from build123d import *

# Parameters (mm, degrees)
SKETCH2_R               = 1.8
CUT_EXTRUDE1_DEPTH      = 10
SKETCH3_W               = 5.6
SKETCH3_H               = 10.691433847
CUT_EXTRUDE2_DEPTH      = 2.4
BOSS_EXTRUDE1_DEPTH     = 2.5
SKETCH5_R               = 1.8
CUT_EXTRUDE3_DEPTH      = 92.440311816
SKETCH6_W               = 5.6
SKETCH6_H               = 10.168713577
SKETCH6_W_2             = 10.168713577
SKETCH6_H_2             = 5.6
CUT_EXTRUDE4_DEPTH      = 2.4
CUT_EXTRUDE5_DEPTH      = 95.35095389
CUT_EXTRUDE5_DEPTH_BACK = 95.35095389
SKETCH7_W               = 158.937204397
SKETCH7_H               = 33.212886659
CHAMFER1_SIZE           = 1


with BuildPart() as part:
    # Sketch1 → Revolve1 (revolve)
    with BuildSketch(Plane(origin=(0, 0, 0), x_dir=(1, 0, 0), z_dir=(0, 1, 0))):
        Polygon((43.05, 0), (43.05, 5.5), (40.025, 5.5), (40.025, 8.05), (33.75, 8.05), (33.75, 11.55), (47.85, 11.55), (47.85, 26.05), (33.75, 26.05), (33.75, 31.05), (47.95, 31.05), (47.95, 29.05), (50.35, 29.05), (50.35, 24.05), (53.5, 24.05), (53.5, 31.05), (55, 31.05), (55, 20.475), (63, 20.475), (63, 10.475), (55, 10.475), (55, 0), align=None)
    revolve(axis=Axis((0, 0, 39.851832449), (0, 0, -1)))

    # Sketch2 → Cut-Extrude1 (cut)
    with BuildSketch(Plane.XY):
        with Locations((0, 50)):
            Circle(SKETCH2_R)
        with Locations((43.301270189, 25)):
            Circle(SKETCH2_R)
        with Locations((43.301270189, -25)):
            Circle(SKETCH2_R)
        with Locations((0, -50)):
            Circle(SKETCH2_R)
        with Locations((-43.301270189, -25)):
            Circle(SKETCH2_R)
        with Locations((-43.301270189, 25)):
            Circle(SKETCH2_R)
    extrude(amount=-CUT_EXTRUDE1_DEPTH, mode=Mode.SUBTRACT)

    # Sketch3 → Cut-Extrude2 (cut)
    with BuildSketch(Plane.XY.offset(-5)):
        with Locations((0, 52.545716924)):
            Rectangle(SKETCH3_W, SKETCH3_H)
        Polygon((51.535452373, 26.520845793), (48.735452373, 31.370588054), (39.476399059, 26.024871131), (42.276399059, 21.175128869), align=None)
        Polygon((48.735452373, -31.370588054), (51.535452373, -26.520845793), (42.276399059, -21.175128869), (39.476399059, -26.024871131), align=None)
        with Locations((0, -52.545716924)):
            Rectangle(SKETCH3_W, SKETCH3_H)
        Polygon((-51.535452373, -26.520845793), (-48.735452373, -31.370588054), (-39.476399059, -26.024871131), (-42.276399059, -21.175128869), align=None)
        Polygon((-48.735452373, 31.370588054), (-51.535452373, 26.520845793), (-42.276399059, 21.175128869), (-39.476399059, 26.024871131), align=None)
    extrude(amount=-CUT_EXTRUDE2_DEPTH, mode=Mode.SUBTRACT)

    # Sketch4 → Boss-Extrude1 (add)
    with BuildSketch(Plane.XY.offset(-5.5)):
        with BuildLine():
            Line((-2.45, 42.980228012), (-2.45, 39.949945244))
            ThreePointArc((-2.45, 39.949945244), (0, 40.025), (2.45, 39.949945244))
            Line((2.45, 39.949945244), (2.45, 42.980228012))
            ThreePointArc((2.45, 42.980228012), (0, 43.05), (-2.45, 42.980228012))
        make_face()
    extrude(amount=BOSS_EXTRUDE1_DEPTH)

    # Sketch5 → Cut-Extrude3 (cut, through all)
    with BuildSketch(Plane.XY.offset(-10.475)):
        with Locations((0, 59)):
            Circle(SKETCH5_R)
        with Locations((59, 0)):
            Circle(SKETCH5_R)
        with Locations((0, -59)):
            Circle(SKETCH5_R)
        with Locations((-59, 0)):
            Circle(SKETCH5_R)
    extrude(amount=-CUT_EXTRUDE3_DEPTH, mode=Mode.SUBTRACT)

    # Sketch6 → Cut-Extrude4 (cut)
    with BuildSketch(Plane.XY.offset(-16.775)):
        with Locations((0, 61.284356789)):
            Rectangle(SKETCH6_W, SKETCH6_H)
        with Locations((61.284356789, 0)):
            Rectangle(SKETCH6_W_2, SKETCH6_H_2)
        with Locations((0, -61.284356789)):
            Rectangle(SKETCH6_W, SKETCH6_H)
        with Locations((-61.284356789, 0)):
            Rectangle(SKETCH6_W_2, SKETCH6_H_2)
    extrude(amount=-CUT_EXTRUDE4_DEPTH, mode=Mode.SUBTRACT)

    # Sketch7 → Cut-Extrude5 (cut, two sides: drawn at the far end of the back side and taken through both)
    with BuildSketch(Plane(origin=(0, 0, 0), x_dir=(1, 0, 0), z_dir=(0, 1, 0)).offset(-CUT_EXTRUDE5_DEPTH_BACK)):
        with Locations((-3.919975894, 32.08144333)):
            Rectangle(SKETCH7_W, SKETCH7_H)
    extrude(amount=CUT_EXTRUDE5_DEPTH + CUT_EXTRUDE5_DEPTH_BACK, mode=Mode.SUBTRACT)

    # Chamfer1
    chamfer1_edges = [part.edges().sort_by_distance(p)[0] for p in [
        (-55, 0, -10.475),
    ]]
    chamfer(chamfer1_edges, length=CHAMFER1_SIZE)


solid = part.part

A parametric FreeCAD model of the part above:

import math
import FreeCAD as App
import Part
import Sketcher
from FreeCAD import Vector
Q = App.Units.Quantity


def edges_at(feature, points):
    """Names of the edges that pass closest to the given points."""
    edges = feature.Shape.Edges
    near = lambda p: min(range(len(edges)), key=lambda i: edges[i].distToShape(Part.Vertex(*p))[0])
    return sorted({f"Edge{near(p) + 1}" for p in points})

doc = App.newDocument("Part")
body = doc.addObject("PartDesign::Body", "Body")

sketch1 = body.newObject("Sketcher::SketchObject", "Sketch")
sketch1.AttachmentSupport = (doc.getObject("XZ_Plane"), [""])
sketch1.MapMode = "FlatFace"
sketch1.addGeometry([
    Part.LineSegment(Vector(43.05, -5.5, 0), Vector(43.05, 0, 0)),
    Part.LineSegment(Vector(43.05, 0, 0), Vector(55, 0, 0)),
    Part.LineSegment(Vector(55, 0, 0), Vector(55, -10.475, 0)),
    Part.LineSegment(Vector(55, -10.475, 0), Vector(63, -10.475, 0)),
    Part.LineSegment(Vector(63, -10.475, 0), Vector(63, -20.475, 0)),
    Part.LineSegment(Vector(63, -20.475, 0), Vector(55, -20.475, 0)),
    Part.LineSegment(Vector(55, -20.475, 0), Vector(55, -31.05, 0)),
    Part.LineSegment(Vector(55, -31.05, 0), Vector(53.5, -31.05, 0)),
    Part.LineSegment(Vector(53.5, -31.05, 0), Vector(53.5, -24.05, 0)),
    Part.LineSegment(Vector(53.5, -24.05, 0), Vector(50.35, -24.05, 0)),
    Part.LineSegment(Vector(50.35, -24.05, 0), Vector(50.35, -29.05, 0)),
    Part.LineSegment(Vector(50.35, -29.05, 0), Vector(47.95, -29.05, 0)),
    Part.LineSegment(Vector(47.95, -29.05, 0), Vector(47.95, -31.05, 0)),
    Part.LineSegment(Vector(47.95, -31.05, 0), Vector(33.75, -31.05, 0)),
    Part.LineSegment(Vector(33.75, -31.05, 0), Vector(33.75, -26.05, 0)),
    Part.LineSegment(Vector(33.75, -26.05, 0), Vector(47.85, -26.05, 0)),
    Part.LineSegment(Vector(47.85, -26.05, 0), Vector(47.85, -11.55, 0)),
    Part.LineSegment(Vector(47.85, -11.55, 0), Vector(33.75, -11.55, 0)),
    Part.LineSegment(Vector(33.75, -11.55, 0), Vector(33.75, -8.05, 0)),
    Part.LineSegment(Vector(33.75, -8.05, 0), Vector(40.025, -8.05, 0)),
    Part.LineSegment(Vector(40.025, -8.05, 0), Vector(40.025, -5.5, 0)),
    Part.LineSegment(Vector(40.025, -5.5, 0), Vector(43.05, -5.5, 0)),
], False)
sketch1.addConstraint([
    Sketcher.Constraint("Coincident", 0, 2, 1, 1),
    Sketcher.Constraint("Coincident", 1, 2, 2, 1),
    Sketcher.Constraint("Coincident", 2, 2, 3, 1),
    Sketcher.Constraint("Coincident", 3, 2, 4, 1),
    Sketcher.Constraint("Coincident", 4, 2, 5, 1),
    Sketcher.Constraint("Coincident", 5, 2, 6, 1),
    Sketcher.Constraint("Coincident", 6, 2, 7, 1),
    Sketcher.Constraint("Coincident", 7, 2, 8, 1),
    Sketcher.Constraint("Coincident", 8, 2, 9, 1),
    Sketcher.Constraint("Coincident", 9, 2, 10, 1),
    Sketcher.Constraint("Coincident", 10, 2, 11, 1),
    Sketcher.Constraint("Coincident", 11, 2, 12, 1),
    Sketcher.Constraint("Coincident", 12, 2, 13, 1),
    Sketcher.Constraint("Coincident", 13, 2, 14, 1),
    Sketcher.Constraint("Coincident", 14, 2, 15, 1),
    Sketcher.Constraint("Coincident", 15, 2, 16, 1),
    Sketcher.Constraint("Coincident", 16, 2, 17, 1),
    Sketcher.Constraint("Coincident", 17, 2, 18, 1),
    Sketcher.Constraint("Coincident", 18, 2, 19, 1),
    Sketcher.Constraint("Coincident", 19, 2, 20, 1),
    Sketcher.Constraint("Coincident", 20, 2, 21, 1),
    Sketcher.Constraint("Coincident", 21, 2, 0, 1),
    Sketcher.Constraint("Vertical", 0),
    Sketcher.Constraint("Horizontal", 1),
    Sketcher.Constraint("Vertical", 2),
    Sketcher.Constraint("Horizontal", 3),
    Sketcher.Constraint("Vertical", 4),
    Sketcher.Constraint("Horizontal", 5),
    Sketcher.Constraint("Vertical", 6),
    Sketcher.Constraint("Horizontal", 7),
    Sketcher.Constraint("Vertical", 8),
    Sketcher.Constraint("Horizontal", 9),
    Sketcher.Constraint("Vertical", 10),
    Sketcher.Constraint("Horizontal", 11),
    Sketcher.Constraint("Vertical", 12),
    Sketcher.Constraint("Horizontal", 13),
    Sketcher.Constraint("Vertical", 14),
    Sketcher.Constraint("Horizontal", 15),
    Sketcher.Constraint("Vertical", 16),
    Sketcher.Constraint("Horizontal", 17),
    Sketcher.Constraint("Vertical", 18),
    Sketcher.Constraint("Horizontal", 19),
    Sketcher.Constraint("Vertical", 20),
    Sketcher.Constraint("Horizontal", 21),
    Sketcher.Constraint("PointOnObject", 0, 2, -1),
    Sketcher.Constraint("Horizontal", 7, 2, 12, 2),
    Sketcher.Constraint("Vertical", 2, 2, 5, 2),
    Sketcher.Constraint("Vertical", 14, 2, 17, 2),
    Sketcher.Constraint("Equal", 10, 14),
    Sketcher.Constraint("DistanceX", 3, 1, 3, 2, 8.0),
    Sketcher.Constraint("DistanceY", 4, 2, 4, 1, 10.0),
    Sketcher.Constraint("DistanceY", 8, 1, 8, 2, 7.0),
    Sketcher.Constraint("DistanceY", 10, 2, 10, 1, 5.0),
    Sketcher.Constraint("DistanceX", 7, 2, 7, 1, 1.5),
    Sketcher.Constraint("DistanceX", 11, 2, 11, 1, 2.4),
    Sketcher.Constraint("DistanceX", 13, 2, 13, 1, 14.2),
    Sketcher.Constraint("DistanceX", 15, 1, 15, 2, 14.1),
    Sketcher.Constraint("DistanceY", 0, 1, 0, 2, 5.5),
    Sketcher.Constraint("DistanceY", 16, 1, 16, 2, 14.5),
    Sketcher.Constraint("DistanceY", 18, 1, 18, 2, 3.5),
    Sketcher.Constraint("DistanceX", -1, 1, 1, 2, 55.0),
    Sketcher.Constraint("DistanceX", 1, 1, 1, 2, 11.95),
    Sketcher.Constraint("DistanceX", 9, 2, 9, 1, 3.15),
    Sketcher.Constraint("DistanceY", 20, 1, 20, 2, 2.55),
    Sketcher.Constraint("DistanceX", 19, 1, 19, 2, 6.275),
    Sketcher.Constraint("DistanceY", 2, 2, 2, 1, 10.475),
])
revolution = body.newObject("PartDesign::Revolution", "Revolution")
revolution.Profile = sketch1
revolution.ReferenceAxis = (sketch1, ["V_Axis"])
revolution.Angle = 360

sketch2 = body.newObject("Sketcher::SketchObject", "Sketch001")
sketch2.AttachmentSupport = (doc.getObject("XY_Plane"), [""])
sketch2.MapMode = "FlatFace"
sketch2.addGeometry([
    Part.Circle(Vector(0, 50, 0), Vector(0, 0, 1), 1.8),
    Part.Circle(Vector(43.30127, 25, 0), Vector(0, 0, 1), 1.8),
    Part.Circle(Vector(43.30127, -25, 0), Vector(0, 0, 1), 1.8),
    Part.Circle(Vector(0, -50, 0), Vector(0, 0, 1), 1.8),
    Part.Circle(Vector(-43.30127, -25, 0), Vector(0, 0, 1), 1.8),
    Part.Circle(Vector(-43.30127, 25, 0), Vector(0, 0, 1), 1.8),
], False)
sketch2.addConstraint([
    Sketcher.Constraint("Equal", 0, 1),
    Sketcher.Constraint("Equal", 1, 2),
    Sketcher.Constraint("Equal", 2, 3),
    Sketcher.Constraint("Equal", 3, 4),
    Sketcher.Constraint("Equal", 4, 5),
    Sketcher.Constraint("Symmetric", 0, 3, 3, 3, -1, 1),
    Sketcher.Constraint("Symmetric", 1, 3, 4, 3, -1, 1),
    Sketcher.Constraint("Symmetric", 2, 3, 5, 3, -1, 1),
    Sketcher.Constraint("Symmetric", 2, 3, 4, 3, -2),
    Sketcher.Constraint("PointOnObject", 0, 3, -2),
    Sketcher.Constraint("Diameter", 0, 3.6),
    Sketcher.Constraint("DistanceY", -1, 1, 0, 3, 50.0),
    Sketcher.Constraint("DistanceY", -1, 1, 1, 3, 25.0),
    Sketcher.Constraint("DistanceX", -1, 1, 1, 3, 43.30127),
])
pocket1 = body.newObject("PartDesign::Pocket", "Pocket")
pocket1.Profile = sketch2
pocket1.Length = 10

sketch3 = body.newObject("Sketcher::SketchObject", "Sketch002")
sketch3.AttachmentSupport = (doc.getObject("XY_Plane"), [""])
sketch3.MapMode = "FlatFace"
sketch3.AttachmentOffset = App.Placement(Vector(0, 0, -5), App.Rotation())
sketch3.addGeometry([
    Part.LineSegment(Vector(-2.8, 57.891434, 0), Vector(-2.8, 47.2, 0)),
    Part.LineSegment(Vector(-2.8, 47.2, 0), Vector(2.8, 47.2, 0)),
    Part.LineSegment(Vector(2.8, 47.2, 0), Vector(2.8, 57.891434, 0)),
    Part.LineSegment(Vector(2.8, 57.891434, 0), Vector(-2.8, 57.891434, 0)),
    Part.LineSegment(Vector(51.535452, 26.520846, 0), Vector(48.735452, 31.370588, 0)),
    Part.LineSegment(Vector(48.735452, 31.370588, 0), Vector(39.476399, 26.024871, 0)),
    Part.LineSegment(Vector(39.476399, 26.024871, 0), Vector(42.276399, 21.175129, 0)),
    Part.LineSegment(Vector(42.276399, 21.175129, 0), Vector(51.535452, 26.520846, 0)),
    Part.LineSegment(Vector(48.735452, -31.370588, 0), Vector(51.535452, -26.520846, 0)),
    Part.LineSegment(Vector(51.535452, -26.520846, 0), Vector(42.276399, -21.175129, 0)),
    Part.LineSegment(Vector(42.276399, -21.175129, 0), Vector(39.476399, -26.024871, 0)),
    Part.LineSegment(Vector(39.476399, -26.024871, 0), Vector(48.735452, -31.370588, 0)),
    Part.LineSegment(Vector(-2.8, -47.2, 0), Vector(-2.8, -57.891434, 0)),
    Part.LineSegment(Vector(-2.8, -57.891434, 0), Vector(2.8, -57.891434, 0)),
    Part.LineSegment(Vector(2.8, -57.891434, 0), Vector(2.8, -47.2, 0)),
    Part.LineSegment(Vector(2.8, -47.2, 0), Vector(-2.8, -47.2, 0)),
    Part.LineSegment(Vector(-51.535452, -26.520846, 0), Vector(-48.735452, -31.370588, 0)),
    Part.LineSegment(Vector(-48.735452, -31.370588, 0), Vector(-39.476399, -26.024871, 0)),
    Part.LineSegment(Vector(-39.476399, -26.024871, 0), Vector(-42.276399, -21.175129, 0)),
    Part.LineSegment(Vector(-42.276399, -21.175129, 0), Vector(-51.535452, -26.520846, 0)),
    Part.LineSegment(Vector(-48.735452, 31.370588, 0), Vector(-51.535452, 26.520846, 0)),
    Part.LineSegment(Vector(-51.535452, 26.520846, 0), Vector(-42.276399, 21.175129, 0)),
    Part.LineSegment(Vector(-42.276399, 21.175129, 0), Vector(-39.476399, 26.024871, 0)),
    Part.LineSegment(Vector(-39.476399, 26.024871, 0), Vector(-48.735452, 31.370588, 0)),
], False)
sketch3.addConstraint([
    Sketcher.Constraint("Coincident", 0, 2, 1, 1),
    Sketcher.Constraint("Coincident", 1, 2, 2, 1),
    Sketcher.Constraint("Coincident", 2, 2, 3, 1),
    Sketcher.Constraint("Coincident", 3, 2, 0, 1),
    Sketcher.Constraint("Coincident", 4, 2, 5, 1),
    Sketcher.Constraint("Coincident", 5, 2, 6, 1),
    Sketcher.Constraint("Coincident", 6, 2, 7, 1),
    Sketcher.Constraint("Coincident", 7, 2, 4, 1),
    Sketcher.Constraint("Coincident", 8, 2, 9, 1),
    Sketcher.Constraint("Coincident", 9, 2, 10, 1),
    Sketcher.Constraint("Coincident", 10, 2, 11, 1),
    Sketcher.Constraint("Coincident", 11, 2, 8, 1),
    Sketcher.Constraint("Coincident", 12, 2, 13, 1),
    Sketcher.Constraint("Coincident", 13, 2, 14, 1),
    Sketcher.Constraint("Coincident", 14, 2, 15, 1),
    Sketcher.Constraint("Coincident", 15, 2, 12, 1),
    Sketcher.Constraint("Coincident", 16, 2, 17, 1),
    Sketcher.Constraint("Coincident", 17, 2, 18, 1),
    Sketcher.Constraint("Coincident", 18, 2, 19, 1),
    Sketcher.Constraint("Coincident", 19, 2, 16, 1),
    Sketcher.Constraint("Coincident", 20, 2, 21, 1),
    Sketcher.Constraint("Coincident", 21, 2, 22, 1),
    Sketcher.Constraint("Coincident", 22, 2, 23, 1),
    Sketcher.Constraint("Coincident", 23, 2, 20, 1),
    Sketcher.Constraint("Vertical", 0),
    Sketcher.Constraint("Horizontal", 1),
    Sketcher.Constraint("Vertical", 2),
    Sketcher.Constraint("Horizontal", 3),
    Sketcher.Constraint("Vertical", 12),
    Sketcher.Constraint("Horizontal", 13),
    Sketcher.Constraint("Vertical", 14),
    Sketcher.Constraint("Horizontal", 15),
    Sketcher.Constraint("Symmetric", 2, 2, 12, 2, -1, 1),
    Sketcher.Constraint("Symmetric", 0, 2, 14, 2, -1, 1),
    Sketcher.Constraint("Symmetric", 4, 2, 16, 2, -1, 1),
    Sketcher.Constraint("Symmetric", 5, 2, 17, 2, -1, 1),
    Sketcher.Constraint("Symmetric", 6, 2, 18, 2, -1, 1),
    Sketcher.Constraint("Symmetric", 7, 2, 19, 2, -1, 1),
    Sketcher.Constraint("Symmetric", 8, 2, 20, 2, -1, 1),
    Sketcher.Constraint("Symmetric", 9, 2, 21, 2, -1, 1),
    Sketcher.Constraint("Symmetric", 10, 2, 22, 2, -1, 1),
    Sketcher.Constraint("Symmetric", 11, 2, 23, 2, -1, 1),
    Sketcher.Constraint("Symmetric", 11, 2, 16, 2, -2),
    Sketcher.Constraint("Symmetric", 10, 2, 17, 2, -2),
    Sketcher.Constraint("Symmetric", 9, 2, 18, 2, -2),
    Sketcher.Constraint("Symmetric", 8, 2, 19, 2, -2),
    Sketcher.Constraint("Perpendicular", 4, 5),
    Sketcher.Constraint("Perpendicular", 5, 6),
    Sketcher.Constraint("Perpendicular", 6, 7),
    Sketcher.Constraint("Vertical", 3, 2, 12, 2),
    Sketcher.Constraint("Angle", 4, Q("120 deg")),
    Sketcher.Constraint("DistanceX", 1, 1, 1, 2, 5.6),
    Sketcher.Constraint("Distance", 4, 5.6),
    Sketcher.Constraint("DistanceY", -1, 1, 0, 2, 47.2),
    Sketcher.Constraint("DistanceY", 9, 2, 5, 2, 47.2),
    Sketcher.Constraint("DistanceX", -1, 1, 5, 2, 39.476399),
    Sketcher.Constraint("DistanceY", 0, 2, 0, 1, 10.691434),
    Sketcher.Constraint("DistanceY", -1, 1, 4, 2, 31.370588),
])
pocket2 = body.newObject("PartDesign::Pocket", "Pocket001")
pocket2.Profile = sketch3
pocket2.Length = 2.4

sketch4 = body.newObject("Sketcher::SketchObject", "Sketch003")
sketch4.AttachmentSupport = (doc.getObject("XY_Plane"), [""])
sketch4.MapMode = "FlatFace"
sketch4.AttachmentOffset = App.Placement(Vector(0, 0, -5.5), App.Rotation())
sketch4.addGeometry([
    Part.LineSegment(Vector(-2.45, 42.980228, 0), Vector(-2.45, 39.949945, 0)),
    Part.ArcOfCircle(Part.Circle(Vector(0, 0, 0), Vector(0, 0, 1), 40.025), math.radians(86.490632), math.radians(93.509368)),
    Part.LineSegment(Vector(2.45, 39.949945, 0), Vector(2.45, 42.980228, 0)),
    Part.ArcOfCircle(Part.Circle(Vector(0, 0, 0), Vector(0, 0, 1), 43.05), math.radians(86.737502), math.radians(93.262498)),
], False)
sketch4.addConstraint([
    Sketcher.Constraint("Coincident", 0, 2, 1, 2),
    Sketcher.Constraint("Coincident", 1, 1, 2, 1),
    Sketcher.Constraint("Coincident", 2, 2, 3, 1),
    Sketcher.Constraint("Coincident", 3, 2, 0, 1),
    Sketcher.Constraint("Vertical", 0),
    Sketcher.Constraint("Vertical", 2),
    Sketcher.Constraint("Coincident", 1, 3, -1, 1),
    Sketcher.Constraint("Coincident", 3, 3, -1, 1),
    Sketcher.Constraint("Horizontal", 0, 2, 1, 1),
    Sketcher.Constraint("Radius", 3, 43.05),
    Sketcher.Constraint("Radius", 1, 40.025),
    Sketcher.Constraint("DistanceX", 0, 2, 1, 1, 4.9),
])
pad1 = body.newObject("PartDesign::Pad", "Pad")
pad1.Profile = sketch4
pad1.Length = 2.5

sketch5 = body.newObject("Sketcher::SketchObject", "Sketch004")
sketch5.AttachmentSupport = (doc.getObject("XY_Plane"), [""])
sketch5.MapMode = "FlatFace"
sketch5.AttachmentOffset = App.Placement(Vector(0, 0, -10.475), App.Rotation())
sketch5.addGeometry([
    Part.Circle(Vector(0, 59, 0), Vector(0, 0, 1), 1.8),
    Part.Circle(Vector(59, 0, 0), Vector(0, 0, 1), 1.8),
    Part.Circle(Vector(0, -59, 0), Vector(0, 0, 1), 1.8),
    Part.Circle(Vector(-59, 0, 0), Vector(0, 0, 1), 1.8),
], False)
sketch5.addConstraint([
    Sketcher.Constraint("Equal", 0, 1),
    Sketcher.Constraint("Equal", 1, 2),
    Sketcher.Constraint("Equal", 2, 3),
    Sketcher.Constraint("Symmetric", 0, 3, 2, 3, -1, 1),
    Sketcher.Constraint("Symmetric", 1, 3, 3, 3, -1, 1),
    Sketcher.Constraint("PointOnObject", 0, 3, -2),
    Sketcher.Constraint("PointOnObject", 1, 3, -1),
    Sketcher.Constraint("Diameter", 0, 3.6),
    Sketcher.Constraint("DistanceY", -1, 1, 0, 3, 59.0),
    Sketcher.Constraint("DistanceX", -1, 1, 1, 3, 59.0),
])
pocket3 = body.newObject("PartDesign::Pocket", "Pocket002")
pocket3.Profile = sketch5
pocket3.Type = "ThroughAll"

sketch6 = body.newObject("Sketcher::SketchObject", "Sketch005")
sketch6.AttachmentSupport = (doc.getObject("XY_Plane"), [""])
sketch6.MapMode = "FlatFace"
sketch6.AttachmentOffset = App.Placement(Vector(0, 0, -16.775), App.Rotation())
sketch6.addGeometry([
    Part.LineSegment(Vector(-2.8, 66.368714, 0), Vector(-2.8, 56.2, 0)),
    Part.LineSegment(Vector(-2.8, 56.2, 0), Vector(2.8, 56.2, 0)),
    Part.LineSegment(Vector(2.8, 56.2, 0), Vector(2.8, 66.368714, 0)),
    Part.LineSegment(Vector(2.8, 66.368714, 0), Vector(-2.8, 66.368714, 0)),
    Part.LineSegment(Vector(56.2, 2.8, 0), Vector(56.2, -2.8, 0)),
    Part.LineSegment(Vector(56.2, -2.8, 0), Vector(66.368714, -2.8, 0)),
    Part.LineSegment(Vector(66.368714, -2.8, 0), Vector(66.368714, 2.8, 0)),
    Part.LineSegment(Vector(66.368714, 2.8, 0), Vector(56.2, 2.8, 0)),
    Part.LineSegment(Vector(-2.8, -56.2, 0), Vector(-2.8, -66.368714, 0)),
    Part.LineSegment(Vector(-2.8, -66.368714, 0), Vector(2.8, -66.368714, 0)),
    Part.LineSegment(Vector(2.8, -66.368714, 0), Vector(2.8, -56.2, 0)),
    Part.LineSegment(Vector(2.8, -56.2, 0), Vector(-2.8, -56.2, 0)),
    Part.LineSegment(Vector(-66.368714, 2.8, 0), Vector(-66.368714, -2.8, 0)),
    Part.LineSegment(Vector(-66.368714, -2.8, 0), Vector(-56.2, -2.8, 0)),
    Part.LineSegment(Vector(-56.2, -2.8, 0), Vector(-56.2, 2.8, 0)),
    Part.LineSegment(Vector(-56.2, 2.8, 0), Vector(-66.368714, 2.8, 0)),
], False)
sketch6.addConstraint([
    Sketcher.Constraint("Coincident", 0, 2, 1, 1),
    Sketcher.Constraint("Coincident", 1, 2, 2, 1),
    Sketcher.Constraint("Coincident", 2, 2, 3, 1),
    Sketcher.Constraint("Coincident", 3, 2, 0, 1),
    Sketcher.Constraint("Coincident", 4, 2, 5, 1),
    Sketcher.Constraint("Coincident", 5, 2, 6, 1),
    Sketcher.Constraint("Coincident", 6, 2, 7, 1),
    Sketcher.Constraint("Coincident", 7, 2, 4, 1),
    Sketcher.Constraint("Coincident", 8, 2, 9, 1),
    Sketcher.Constraint("Coincident", 9, 2, 10, 1),
    Sketcher.Constraint("Coincident", 10, 2, 11, 1),
    Sketcher.Constraint("Coincident", 11, 2, 8, 1),
    Sketcher.Constraint("Coincident", 12, 2, 13, 1),
    Sketcher.Constraint("Coincident", 13, 2, 14, 1),
    Sketcher.Constraint("Coincident", 14, 2, 15, 1),
    Sketcher.Constraint("Coincident", 15, 2, 12, 1),
    Sketcher.Constraint("Vertical", 0),
    Sketcher.Constraint("Horizontal", 1),
    Sketcher.Constraint("Vertical", 2),
    Sketcher.Constraint("Horizontal", 3),
    Sketcher.Constraint("Vertical", 4),
    Sketcher.Constraint("Horizontal", 5),
    Sketcher.Constraint("Vertical", 6),
    Sketcher.Constraint("Horizontal", 7),
    Sketcher.Constraint("Vertical", 8),
    Sketcher.Constraint("Horizontal", 9),
    Sketcher.Constraint("Vertical", 10),
    Sketcher.Constraint("Horizontal", 11),
    Sketcher.Constraint("Vertical", 12),
    Sketcher.Constraint("Horizontal", 13),
    Sketcher.Constraint("Vertical", 14),
    Sketcher.Constraint("Horizontal", 15),
    Sketcher.Constraint("Symmetric", 2, 2, 8, 2, -1, 1),
    Sketcher.Constraint("Symmetric", 0, 2, 10, 2, -1, 1),
    Sketcher.Constraint("Symmetric", 6, 2, 12, 2, -1, 1),
    Sketcher.Constraint("Symmetric", 4, 2, 14, 2, -1, 1),
    Sketcher.Constraint("Horizontal", 5, 2, 12, 2),
    Sketcher.Constraint("Vertical", 3, 2, 8, 2),
    Sketcher.Constraint("Equal", 15, 0),
    Sketcher.Constraint("Equal", 11, 4),
    Sketcher.Constraint("DistanceX", 1, 1, 1, 2, 5.6),
    Sketcher.Constraint("DistanceY", 4, 2, 1, 2, 59.0),
    Sketcher.Constraint("DistanceX", 0, 2, 4, 2, 59.0),
    Sketcher.Constraint("DistanceX", 5, 1, 5, 2, 10.168714),
])
pocket4 = body.newObject("PartDesign::Pocket", "Pocket003")
pocket4.Profile = sketch6
pocket4.Length = 2.4

sketch7 = body.newObject("Sketcher::SketchObject", "Sketch006")
sketch7.AttachmentSupport = (doc.getObject("XZ_Plane"), [""])
sketch7.MapMode = "FlatFace"
sketch7.addGeometry([
    Part.LineSegment(Vector(-83.388578, -48.687887, 0), Vector(-83.388578, -15.475, 0)),
    Part.LineSegment(Vector(-83.388578, -15.475, 0), Vector(75.548626, -15.475, 0)),
    Part.LineSegment(Vector(75.548626, -15.475, 0), Vector(75.548626, -48.687887, 0)),
    Part.LineSegment(Vector(75.548626, -48.687887, 0), Vector(-83.388578, -48.687887, 0)),
], False)
sketch7.addConstraint([
    Sketcher.Constraint("Coincident", 0, 2, 1, 1),
    Sketcher.Constraint("Coincident", 1, 2, 2, 1),
    Sketcher.Constraint("Coincident", 2, 2, 3, 1),
    Sketcher.Constraint("Coincident", 3, 2, 0, 1),
    Sketcher.Constraint("Vertical", 0),
    Sketcher.Constraint("Horizontal", 1),
    Sketcher.Constraint("Vertical", 2),
    Sketcher.Constraint("Horizontal", 3),
    Sketcher.Constraint("DistanceY", 0, 2, -1, 1, 15.475),
    Sketcher.Constraint("DistanceX", 1, 1, 1, 2, 158.937204),
    Sketcher.Constraint("DistanceY", 0, 1, 0, 2, 33.212887),
    Sketcher.Constraint("DistanceX", 0, 2, -1, 1, 83.388578),
])
pocket5 = body.newObject("PartDesign::Pocket", "Pocket004")
pocket5.Profile = sketch7
pocket5.Type = "ThroughAll"
pocket5.Midplane = True
doc.recompute()

chamfer = body.newObject("PartDesign::Chamfer", "Chamfer")
chamfer.Base = (pocket5, edges_at(pocket5, [(-55, 0, -10.475)]))
chamfer.Size = 1

doc.recompute()
